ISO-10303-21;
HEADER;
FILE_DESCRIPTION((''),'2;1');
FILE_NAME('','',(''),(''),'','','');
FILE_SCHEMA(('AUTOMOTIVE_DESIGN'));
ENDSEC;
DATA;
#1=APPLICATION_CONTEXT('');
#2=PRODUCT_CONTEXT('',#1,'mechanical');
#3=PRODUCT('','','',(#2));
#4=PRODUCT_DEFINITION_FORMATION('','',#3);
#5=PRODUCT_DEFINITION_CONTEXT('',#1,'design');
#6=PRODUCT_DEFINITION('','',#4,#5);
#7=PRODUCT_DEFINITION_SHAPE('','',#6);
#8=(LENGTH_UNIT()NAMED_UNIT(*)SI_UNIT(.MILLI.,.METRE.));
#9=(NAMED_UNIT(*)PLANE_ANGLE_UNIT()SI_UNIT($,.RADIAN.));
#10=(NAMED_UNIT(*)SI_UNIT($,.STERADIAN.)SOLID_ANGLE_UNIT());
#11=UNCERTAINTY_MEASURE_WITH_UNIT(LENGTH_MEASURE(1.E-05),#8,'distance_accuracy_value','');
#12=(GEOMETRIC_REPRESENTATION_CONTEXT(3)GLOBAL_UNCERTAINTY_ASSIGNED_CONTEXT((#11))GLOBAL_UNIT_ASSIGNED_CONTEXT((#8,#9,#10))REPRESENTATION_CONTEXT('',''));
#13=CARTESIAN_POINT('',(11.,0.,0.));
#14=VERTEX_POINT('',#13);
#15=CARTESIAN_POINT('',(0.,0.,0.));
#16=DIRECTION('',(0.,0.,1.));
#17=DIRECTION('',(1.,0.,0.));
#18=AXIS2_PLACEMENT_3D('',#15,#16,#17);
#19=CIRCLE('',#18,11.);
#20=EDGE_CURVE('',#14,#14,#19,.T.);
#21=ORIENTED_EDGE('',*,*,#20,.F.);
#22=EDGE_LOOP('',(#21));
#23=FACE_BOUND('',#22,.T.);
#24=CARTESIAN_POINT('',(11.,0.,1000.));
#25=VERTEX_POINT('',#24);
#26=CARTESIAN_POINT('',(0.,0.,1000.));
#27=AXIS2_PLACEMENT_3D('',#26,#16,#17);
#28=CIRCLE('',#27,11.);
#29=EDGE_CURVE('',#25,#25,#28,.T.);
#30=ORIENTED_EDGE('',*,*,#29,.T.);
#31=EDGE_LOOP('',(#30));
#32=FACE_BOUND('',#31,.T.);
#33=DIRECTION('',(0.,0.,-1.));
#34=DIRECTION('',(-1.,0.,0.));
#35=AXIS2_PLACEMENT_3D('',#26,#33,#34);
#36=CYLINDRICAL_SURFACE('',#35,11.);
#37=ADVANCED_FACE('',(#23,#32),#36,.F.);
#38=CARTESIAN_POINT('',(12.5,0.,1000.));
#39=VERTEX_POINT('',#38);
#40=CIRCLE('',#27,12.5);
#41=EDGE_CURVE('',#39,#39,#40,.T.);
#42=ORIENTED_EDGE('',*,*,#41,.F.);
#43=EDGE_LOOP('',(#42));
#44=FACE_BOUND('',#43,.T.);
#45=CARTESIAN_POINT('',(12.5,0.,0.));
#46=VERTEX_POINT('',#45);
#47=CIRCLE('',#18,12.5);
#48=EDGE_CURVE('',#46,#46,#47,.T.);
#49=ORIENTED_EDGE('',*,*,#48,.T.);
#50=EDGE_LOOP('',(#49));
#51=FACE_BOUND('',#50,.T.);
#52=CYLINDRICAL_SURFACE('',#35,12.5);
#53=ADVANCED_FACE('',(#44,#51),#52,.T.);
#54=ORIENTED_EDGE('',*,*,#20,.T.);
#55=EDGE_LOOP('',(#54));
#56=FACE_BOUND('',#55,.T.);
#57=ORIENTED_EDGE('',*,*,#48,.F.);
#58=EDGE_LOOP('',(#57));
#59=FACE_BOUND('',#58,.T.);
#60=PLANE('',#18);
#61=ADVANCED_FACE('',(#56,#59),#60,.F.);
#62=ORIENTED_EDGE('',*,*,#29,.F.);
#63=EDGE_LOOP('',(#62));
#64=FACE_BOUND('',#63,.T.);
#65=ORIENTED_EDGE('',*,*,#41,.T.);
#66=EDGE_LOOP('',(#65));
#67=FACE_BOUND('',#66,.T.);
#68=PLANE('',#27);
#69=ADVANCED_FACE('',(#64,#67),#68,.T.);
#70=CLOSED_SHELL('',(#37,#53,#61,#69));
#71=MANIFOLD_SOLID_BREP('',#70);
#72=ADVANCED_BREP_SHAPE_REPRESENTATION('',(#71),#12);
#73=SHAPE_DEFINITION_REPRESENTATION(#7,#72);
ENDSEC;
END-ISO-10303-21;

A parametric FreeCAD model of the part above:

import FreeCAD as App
import Part
import Sketcher

V = App.Vector

doc = App.newDocument("Part")
params = doc.addObject("Spreadsheet::Sheet", "Params")
for row, (alias, value) in enumerate([
    ("sketch1_diameter", "25 mm"),
    ("sketch1_diameter2", "22 mm"),
    ("pad1_length", "1000 mm"),
], start=1):
    params.set(f"A{row}", alias)
    params.set(f"B{row}", "=" + value)
    params.setAlias(f"B{row}", alias)

body = doc.addObject("PartDesign::Body", "Body")

sketch1 = body.newObject("Sketcher::SketchObject", "Sketch")
sketch1.AttachmentSupport = (doc.getObject("XY_Plane"), [""])
sketch1.MapMode = "FlatFace"
sketch1.addGeometry([
    Part.Circle(V(0, 0, 0), V(0, 0, 1), 12),
    Part.Circle(V(0, 0, 0), V(0, 0, 1), 11),
], False)
sketch1.addConstraint([
    Sketcher.Constraint("Coincident", 0, 3, -1, 1),
    Sketcher.Constraint("Coincident", 1, 3, -1, 1),
    Sketcher.Constraint("Diameter", 0, 25.0),
    Sketcher.Constraint("Diameter", 1, 22.0),
])
sketch1.setExpression("Constraints[2]", "Params.sketch1_diameter")
sketch1.setExpression("Constraints[3]", "Params.sketch1_diameter2")
pad1 = body.newObject("PartDesign::Pad", "Pad")
pad1.Profile = sketch1
pad1.setExpression("Length", "Params.pad1_length")

doc.recompute()
